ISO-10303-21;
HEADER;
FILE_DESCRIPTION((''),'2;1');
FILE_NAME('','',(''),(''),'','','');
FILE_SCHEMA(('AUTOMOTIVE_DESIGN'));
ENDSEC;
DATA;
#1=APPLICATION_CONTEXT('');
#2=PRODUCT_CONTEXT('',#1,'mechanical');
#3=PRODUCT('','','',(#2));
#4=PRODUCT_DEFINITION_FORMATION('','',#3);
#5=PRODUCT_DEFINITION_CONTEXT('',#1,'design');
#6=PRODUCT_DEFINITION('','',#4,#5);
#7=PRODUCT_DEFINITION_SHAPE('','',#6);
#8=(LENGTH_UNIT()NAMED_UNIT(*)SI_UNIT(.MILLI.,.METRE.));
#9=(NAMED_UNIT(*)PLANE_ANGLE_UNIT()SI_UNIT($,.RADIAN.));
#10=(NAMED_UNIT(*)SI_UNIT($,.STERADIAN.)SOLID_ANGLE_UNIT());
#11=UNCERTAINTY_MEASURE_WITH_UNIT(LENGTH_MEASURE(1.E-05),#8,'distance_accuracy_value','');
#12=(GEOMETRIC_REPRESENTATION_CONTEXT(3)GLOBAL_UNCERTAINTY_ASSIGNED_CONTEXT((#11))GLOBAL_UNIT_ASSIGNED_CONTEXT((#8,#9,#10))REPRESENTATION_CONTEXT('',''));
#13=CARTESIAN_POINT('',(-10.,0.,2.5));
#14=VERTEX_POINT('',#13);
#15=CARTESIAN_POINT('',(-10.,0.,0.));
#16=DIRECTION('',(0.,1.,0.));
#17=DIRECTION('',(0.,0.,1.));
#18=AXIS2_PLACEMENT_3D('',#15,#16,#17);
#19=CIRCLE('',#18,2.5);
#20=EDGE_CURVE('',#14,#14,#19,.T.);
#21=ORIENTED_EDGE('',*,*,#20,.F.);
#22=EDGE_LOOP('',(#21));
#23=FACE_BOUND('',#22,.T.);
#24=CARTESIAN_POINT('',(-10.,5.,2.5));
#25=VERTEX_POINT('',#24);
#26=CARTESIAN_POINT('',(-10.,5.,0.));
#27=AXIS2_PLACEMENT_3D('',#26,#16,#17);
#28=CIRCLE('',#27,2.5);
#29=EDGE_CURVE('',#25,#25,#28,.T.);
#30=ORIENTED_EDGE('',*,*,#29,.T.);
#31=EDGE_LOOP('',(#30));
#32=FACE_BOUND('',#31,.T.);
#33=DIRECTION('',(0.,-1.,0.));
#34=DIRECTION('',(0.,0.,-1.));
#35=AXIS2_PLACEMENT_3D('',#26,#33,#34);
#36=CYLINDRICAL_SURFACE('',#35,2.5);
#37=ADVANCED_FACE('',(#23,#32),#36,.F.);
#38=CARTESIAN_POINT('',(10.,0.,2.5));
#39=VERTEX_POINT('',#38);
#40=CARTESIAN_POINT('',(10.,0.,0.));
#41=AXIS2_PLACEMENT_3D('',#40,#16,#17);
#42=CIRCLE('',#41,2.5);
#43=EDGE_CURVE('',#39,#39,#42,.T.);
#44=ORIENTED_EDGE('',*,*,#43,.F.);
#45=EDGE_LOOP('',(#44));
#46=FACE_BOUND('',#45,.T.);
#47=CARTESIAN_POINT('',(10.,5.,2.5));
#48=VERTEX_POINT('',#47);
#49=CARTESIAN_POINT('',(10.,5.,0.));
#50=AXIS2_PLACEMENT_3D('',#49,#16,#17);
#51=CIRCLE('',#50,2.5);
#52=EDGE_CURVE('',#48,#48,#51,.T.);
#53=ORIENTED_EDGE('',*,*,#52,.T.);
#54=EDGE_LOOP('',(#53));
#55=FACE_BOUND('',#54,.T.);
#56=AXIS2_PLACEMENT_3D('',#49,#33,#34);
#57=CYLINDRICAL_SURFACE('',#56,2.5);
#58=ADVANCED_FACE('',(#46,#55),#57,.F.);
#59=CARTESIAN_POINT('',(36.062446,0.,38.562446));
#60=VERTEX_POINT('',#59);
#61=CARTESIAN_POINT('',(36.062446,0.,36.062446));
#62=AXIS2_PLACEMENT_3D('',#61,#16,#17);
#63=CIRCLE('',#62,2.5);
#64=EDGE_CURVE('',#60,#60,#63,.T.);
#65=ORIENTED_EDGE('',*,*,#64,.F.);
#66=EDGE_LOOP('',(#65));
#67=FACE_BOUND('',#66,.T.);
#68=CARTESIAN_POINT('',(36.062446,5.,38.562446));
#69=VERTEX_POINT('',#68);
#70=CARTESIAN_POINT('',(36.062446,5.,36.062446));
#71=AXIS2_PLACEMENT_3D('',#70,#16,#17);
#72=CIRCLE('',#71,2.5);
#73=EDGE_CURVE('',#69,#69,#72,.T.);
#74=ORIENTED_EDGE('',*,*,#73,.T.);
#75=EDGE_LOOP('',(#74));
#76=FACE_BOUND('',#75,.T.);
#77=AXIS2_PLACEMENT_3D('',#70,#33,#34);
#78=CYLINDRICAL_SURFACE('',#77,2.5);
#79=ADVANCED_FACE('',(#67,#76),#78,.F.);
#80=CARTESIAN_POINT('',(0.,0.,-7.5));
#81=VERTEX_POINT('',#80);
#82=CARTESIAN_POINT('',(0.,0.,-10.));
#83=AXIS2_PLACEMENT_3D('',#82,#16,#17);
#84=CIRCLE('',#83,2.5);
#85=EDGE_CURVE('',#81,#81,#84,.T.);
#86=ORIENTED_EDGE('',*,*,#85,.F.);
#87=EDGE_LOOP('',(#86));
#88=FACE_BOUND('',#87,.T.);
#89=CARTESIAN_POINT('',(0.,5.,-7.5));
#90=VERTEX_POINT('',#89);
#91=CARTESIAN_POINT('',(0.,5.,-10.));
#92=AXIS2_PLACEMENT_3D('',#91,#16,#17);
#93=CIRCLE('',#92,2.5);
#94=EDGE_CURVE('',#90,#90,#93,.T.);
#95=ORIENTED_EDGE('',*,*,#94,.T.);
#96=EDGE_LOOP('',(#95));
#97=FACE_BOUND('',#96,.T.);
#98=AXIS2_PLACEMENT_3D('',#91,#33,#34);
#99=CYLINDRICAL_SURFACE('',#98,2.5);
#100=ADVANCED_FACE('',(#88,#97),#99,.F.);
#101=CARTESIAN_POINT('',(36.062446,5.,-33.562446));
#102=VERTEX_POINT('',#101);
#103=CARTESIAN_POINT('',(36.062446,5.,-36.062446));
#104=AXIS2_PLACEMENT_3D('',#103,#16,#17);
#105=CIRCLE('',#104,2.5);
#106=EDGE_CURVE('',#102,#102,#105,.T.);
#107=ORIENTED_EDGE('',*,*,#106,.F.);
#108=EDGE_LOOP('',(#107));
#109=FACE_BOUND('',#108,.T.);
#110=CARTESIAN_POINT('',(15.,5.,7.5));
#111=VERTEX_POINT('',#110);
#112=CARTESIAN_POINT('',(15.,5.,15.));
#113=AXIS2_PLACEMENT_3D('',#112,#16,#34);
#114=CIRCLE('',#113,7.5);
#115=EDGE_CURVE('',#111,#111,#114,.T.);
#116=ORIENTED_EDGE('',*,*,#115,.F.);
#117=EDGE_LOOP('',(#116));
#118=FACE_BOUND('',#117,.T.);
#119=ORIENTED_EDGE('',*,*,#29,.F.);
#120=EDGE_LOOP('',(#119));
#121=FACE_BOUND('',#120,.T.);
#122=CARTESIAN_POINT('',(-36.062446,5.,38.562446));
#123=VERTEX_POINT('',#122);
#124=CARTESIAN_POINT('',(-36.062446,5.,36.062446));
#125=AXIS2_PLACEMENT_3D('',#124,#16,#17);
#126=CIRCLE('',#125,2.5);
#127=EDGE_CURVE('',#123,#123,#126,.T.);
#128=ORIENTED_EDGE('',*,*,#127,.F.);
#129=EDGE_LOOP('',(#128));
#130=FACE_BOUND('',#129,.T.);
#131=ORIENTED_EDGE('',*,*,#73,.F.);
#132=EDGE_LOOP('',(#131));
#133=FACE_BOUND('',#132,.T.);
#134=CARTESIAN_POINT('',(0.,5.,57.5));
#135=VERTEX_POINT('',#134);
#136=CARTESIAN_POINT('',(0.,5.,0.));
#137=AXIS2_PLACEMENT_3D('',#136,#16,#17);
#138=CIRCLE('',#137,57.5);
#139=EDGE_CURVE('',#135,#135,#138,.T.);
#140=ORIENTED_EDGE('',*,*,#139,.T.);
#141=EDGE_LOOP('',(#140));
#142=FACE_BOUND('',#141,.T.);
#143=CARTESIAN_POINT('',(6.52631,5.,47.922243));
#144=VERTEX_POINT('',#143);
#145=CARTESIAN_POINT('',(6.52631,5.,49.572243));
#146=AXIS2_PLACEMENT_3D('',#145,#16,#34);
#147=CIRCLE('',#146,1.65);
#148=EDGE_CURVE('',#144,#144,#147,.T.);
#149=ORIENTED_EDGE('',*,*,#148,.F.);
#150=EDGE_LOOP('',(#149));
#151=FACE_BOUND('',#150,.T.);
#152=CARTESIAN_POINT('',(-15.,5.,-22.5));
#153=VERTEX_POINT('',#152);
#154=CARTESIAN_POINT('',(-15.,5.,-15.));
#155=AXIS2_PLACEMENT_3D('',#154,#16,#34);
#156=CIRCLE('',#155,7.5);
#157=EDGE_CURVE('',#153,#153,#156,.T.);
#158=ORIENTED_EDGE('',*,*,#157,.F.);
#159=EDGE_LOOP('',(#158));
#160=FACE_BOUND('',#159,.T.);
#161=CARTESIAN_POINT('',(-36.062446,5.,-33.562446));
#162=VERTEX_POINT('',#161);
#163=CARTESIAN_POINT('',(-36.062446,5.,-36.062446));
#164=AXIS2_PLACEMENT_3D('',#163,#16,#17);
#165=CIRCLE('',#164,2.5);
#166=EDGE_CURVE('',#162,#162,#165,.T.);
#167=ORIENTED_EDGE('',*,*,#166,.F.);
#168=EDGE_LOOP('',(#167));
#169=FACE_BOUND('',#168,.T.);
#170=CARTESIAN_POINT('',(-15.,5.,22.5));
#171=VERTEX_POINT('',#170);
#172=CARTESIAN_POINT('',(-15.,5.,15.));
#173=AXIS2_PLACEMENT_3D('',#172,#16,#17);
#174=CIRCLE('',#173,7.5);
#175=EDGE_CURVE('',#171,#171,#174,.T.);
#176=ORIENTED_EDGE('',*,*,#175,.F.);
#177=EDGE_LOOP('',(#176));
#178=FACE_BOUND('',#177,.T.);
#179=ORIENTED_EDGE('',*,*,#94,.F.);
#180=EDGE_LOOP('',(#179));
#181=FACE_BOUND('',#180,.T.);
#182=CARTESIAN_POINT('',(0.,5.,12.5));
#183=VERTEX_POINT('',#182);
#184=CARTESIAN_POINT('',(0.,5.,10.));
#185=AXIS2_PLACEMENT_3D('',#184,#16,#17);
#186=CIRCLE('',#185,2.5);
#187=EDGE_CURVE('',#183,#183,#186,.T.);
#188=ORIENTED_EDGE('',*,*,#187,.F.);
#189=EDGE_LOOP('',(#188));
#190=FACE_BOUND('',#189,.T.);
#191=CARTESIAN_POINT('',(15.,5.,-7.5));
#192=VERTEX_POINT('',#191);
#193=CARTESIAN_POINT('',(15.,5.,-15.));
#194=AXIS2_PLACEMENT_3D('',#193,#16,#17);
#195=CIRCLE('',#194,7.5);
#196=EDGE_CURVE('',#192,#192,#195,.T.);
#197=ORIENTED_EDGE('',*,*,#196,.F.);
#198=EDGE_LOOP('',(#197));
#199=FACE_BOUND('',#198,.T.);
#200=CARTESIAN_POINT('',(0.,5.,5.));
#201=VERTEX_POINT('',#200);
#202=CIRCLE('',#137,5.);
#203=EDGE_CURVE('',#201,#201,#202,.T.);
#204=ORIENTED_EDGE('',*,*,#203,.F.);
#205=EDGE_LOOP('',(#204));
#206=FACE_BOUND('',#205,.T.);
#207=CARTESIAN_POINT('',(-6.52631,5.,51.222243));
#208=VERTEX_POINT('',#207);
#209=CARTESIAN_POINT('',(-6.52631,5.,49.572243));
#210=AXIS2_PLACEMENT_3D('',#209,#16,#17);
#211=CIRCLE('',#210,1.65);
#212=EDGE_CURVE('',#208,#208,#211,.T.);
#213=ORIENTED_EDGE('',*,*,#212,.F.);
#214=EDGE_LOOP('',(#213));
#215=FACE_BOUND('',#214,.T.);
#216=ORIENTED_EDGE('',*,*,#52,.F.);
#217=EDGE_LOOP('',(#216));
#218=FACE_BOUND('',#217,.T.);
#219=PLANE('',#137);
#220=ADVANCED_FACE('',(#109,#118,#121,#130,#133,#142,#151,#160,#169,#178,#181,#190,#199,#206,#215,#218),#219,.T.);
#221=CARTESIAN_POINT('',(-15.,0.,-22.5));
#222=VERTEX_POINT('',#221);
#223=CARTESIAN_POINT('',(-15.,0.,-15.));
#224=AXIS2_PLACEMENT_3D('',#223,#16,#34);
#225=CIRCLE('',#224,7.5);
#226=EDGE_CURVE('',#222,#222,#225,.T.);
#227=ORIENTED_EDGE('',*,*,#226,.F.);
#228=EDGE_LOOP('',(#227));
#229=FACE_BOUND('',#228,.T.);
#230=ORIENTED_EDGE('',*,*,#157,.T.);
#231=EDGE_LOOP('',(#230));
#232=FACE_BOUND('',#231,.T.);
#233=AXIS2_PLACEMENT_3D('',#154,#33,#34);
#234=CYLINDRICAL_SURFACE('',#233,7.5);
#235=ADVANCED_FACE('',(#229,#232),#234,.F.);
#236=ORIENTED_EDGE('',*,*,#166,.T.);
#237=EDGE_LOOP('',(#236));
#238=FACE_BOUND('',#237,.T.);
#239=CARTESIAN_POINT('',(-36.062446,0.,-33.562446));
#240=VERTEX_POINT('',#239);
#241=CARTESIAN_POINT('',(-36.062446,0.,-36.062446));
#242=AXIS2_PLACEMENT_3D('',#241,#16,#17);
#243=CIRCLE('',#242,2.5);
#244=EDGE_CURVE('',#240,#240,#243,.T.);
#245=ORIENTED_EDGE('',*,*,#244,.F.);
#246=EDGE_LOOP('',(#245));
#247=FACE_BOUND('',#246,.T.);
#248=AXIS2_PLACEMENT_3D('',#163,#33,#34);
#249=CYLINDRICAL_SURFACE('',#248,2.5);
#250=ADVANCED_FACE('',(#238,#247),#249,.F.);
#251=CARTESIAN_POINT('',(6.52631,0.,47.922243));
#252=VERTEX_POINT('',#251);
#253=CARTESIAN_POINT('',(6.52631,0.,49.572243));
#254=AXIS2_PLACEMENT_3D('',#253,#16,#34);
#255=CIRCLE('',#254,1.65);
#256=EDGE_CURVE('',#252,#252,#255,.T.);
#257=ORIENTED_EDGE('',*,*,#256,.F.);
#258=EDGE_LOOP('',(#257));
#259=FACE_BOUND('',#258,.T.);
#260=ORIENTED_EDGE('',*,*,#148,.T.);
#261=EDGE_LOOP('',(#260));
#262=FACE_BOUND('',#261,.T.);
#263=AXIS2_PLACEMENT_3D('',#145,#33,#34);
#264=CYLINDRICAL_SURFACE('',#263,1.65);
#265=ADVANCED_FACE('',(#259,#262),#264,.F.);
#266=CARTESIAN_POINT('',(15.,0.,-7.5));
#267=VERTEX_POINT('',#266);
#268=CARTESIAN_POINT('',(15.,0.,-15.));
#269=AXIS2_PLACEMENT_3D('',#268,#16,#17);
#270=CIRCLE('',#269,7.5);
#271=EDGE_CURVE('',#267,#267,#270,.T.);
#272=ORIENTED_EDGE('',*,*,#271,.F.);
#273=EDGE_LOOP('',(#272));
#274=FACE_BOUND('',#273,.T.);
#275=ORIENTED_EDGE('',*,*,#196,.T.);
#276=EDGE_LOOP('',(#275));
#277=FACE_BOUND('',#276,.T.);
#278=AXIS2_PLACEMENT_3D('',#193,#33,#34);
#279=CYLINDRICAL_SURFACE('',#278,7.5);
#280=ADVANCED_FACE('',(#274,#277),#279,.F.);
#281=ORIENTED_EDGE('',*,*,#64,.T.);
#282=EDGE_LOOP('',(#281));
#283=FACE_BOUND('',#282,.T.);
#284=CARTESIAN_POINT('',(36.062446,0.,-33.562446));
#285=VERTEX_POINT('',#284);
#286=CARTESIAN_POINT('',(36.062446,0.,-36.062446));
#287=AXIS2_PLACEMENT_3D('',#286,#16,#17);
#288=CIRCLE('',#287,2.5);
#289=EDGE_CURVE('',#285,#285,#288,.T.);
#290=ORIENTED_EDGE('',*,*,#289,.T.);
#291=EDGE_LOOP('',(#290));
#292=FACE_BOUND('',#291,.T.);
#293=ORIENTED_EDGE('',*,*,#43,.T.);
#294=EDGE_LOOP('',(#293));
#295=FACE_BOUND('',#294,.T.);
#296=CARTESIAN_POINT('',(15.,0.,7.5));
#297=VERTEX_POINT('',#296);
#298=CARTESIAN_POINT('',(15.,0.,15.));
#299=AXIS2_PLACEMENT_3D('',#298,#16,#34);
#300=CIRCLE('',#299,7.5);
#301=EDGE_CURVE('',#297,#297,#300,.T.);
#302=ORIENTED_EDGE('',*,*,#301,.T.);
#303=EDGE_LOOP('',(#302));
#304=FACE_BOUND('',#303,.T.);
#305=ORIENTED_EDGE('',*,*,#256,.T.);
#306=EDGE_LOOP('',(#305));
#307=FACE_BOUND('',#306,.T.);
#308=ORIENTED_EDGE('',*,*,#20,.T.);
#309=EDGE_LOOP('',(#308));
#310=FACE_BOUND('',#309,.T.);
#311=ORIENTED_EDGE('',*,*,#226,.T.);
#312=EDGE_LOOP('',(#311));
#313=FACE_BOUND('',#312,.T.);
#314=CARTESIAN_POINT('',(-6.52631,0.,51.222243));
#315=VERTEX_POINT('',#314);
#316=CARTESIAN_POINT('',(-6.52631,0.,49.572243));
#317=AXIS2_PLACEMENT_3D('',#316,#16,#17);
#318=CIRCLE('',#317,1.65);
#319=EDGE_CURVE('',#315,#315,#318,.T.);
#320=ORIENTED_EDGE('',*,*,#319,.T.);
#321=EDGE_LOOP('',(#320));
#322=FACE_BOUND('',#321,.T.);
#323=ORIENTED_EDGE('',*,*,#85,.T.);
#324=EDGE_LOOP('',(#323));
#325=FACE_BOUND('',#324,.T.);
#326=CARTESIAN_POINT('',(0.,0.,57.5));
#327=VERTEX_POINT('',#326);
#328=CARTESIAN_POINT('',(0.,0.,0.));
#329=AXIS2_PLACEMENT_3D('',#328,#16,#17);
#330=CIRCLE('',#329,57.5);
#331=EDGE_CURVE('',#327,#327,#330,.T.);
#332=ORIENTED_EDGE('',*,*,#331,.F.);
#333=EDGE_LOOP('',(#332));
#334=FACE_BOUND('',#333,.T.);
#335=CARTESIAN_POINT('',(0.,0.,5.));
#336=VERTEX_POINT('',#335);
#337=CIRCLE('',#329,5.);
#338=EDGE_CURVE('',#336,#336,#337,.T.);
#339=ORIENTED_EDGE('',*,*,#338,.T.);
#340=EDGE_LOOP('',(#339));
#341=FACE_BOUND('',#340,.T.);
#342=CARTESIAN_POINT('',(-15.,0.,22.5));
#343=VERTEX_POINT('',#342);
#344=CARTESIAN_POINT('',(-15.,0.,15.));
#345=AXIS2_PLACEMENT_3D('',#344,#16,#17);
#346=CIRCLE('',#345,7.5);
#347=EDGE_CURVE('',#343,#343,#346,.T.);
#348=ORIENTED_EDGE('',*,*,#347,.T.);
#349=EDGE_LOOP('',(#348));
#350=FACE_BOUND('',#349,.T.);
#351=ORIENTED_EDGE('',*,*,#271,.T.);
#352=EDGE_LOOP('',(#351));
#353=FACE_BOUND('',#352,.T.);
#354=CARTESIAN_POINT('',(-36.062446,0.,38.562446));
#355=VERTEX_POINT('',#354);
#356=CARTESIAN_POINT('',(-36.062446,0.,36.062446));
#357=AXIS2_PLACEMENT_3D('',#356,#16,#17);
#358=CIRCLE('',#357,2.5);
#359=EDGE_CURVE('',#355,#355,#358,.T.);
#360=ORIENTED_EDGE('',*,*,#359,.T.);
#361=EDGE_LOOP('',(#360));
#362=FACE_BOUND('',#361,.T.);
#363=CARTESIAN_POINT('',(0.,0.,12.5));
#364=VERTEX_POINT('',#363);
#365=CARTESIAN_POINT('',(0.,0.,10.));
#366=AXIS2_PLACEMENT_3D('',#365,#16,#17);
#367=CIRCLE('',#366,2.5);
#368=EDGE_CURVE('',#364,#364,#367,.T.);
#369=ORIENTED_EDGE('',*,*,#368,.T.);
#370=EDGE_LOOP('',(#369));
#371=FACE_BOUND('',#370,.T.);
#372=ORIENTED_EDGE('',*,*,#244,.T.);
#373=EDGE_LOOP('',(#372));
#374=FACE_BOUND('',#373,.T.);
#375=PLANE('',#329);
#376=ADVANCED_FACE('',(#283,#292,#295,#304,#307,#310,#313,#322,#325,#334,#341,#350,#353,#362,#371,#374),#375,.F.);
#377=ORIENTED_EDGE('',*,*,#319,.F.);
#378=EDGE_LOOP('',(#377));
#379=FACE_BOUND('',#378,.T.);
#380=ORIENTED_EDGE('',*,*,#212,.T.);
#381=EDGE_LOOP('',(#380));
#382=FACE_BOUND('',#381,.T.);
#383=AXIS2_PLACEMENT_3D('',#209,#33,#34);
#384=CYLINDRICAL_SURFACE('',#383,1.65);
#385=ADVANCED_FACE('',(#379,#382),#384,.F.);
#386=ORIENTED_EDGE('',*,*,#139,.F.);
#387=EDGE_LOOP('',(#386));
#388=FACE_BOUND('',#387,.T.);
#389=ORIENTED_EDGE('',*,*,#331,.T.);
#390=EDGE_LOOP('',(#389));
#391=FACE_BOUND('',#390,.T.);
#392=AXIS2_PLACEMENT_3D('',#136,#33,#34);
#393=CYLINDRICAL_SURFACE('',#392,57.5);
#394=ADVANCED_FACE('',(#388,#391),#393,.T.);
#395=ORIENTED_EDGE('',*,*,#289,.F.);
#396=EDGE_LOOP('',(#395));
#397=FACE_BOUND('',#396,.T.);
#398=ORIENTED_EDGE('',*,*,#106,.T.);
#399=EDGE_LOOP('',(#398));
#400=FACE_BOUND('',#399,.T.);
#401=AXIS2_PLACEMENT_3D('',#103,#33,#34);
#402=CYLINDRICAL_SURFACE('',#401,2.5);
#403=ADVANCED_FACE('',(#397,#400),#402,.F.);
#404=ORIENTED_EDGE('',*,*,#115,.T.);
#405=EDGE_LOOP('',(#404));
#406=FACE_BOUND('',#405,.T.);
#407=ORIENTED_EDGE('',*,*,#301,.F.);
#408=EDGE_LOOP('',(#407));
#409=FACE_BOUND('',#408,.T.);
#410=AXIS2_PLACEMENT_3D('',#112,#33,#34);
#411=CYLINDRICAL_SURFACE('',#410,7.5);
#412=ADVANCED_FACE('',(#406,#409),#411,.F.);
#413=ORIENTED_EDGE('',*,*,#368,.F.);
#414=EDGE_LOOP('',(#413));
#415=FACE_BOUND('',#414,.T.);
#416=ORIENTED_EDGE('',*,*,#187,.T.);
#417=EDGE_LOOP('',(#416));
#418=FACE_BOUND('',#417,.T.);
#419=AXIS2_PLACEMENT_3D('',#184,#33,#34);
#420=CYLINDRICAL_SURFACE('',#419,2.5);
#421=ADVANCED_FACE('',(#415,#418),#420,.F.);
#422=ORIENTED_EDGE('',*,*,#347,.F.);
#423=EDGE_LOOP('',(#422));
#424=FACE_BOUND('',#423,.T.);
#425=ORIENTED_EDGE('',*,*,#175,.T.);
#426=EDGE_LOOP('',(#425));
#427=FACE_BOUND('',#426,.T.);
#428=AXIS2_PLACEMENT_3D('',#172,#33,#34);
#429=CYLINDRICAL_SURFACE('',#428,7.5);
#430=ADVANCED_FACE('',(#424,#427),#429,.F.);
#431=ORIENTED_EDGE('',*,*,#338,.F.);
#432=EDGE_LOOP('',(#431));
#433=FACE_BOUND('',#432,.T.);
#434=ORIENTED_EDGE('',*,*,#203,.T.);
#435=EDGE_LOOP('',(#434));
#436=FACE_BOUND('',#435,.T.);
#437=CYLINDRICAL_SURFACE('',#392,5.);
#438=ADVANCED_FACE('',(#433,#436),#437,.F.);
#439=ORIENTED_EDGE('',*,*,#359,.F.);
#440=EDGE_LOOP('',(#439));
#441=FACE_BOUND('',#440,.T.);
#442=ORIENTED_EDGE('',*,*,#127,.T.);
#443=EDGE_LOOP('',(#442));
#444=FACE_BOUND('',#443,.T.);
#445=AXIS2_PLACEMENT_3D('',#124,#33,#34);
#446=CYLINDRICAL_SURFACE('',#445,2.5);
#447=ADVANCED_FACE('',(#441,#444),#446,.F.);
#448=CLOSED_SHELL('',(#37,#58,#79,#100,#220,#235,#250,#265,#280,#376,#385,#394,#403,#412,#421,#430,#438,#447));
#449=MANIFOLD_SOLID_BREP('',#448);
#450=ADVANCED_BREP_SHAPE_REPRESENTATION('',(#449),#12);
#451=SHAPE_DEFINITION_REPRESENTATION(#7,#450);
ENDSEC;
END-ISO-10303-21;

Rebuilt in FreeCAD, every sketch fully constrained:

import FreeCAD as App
import Part
import Sketcher
from FreeCAD import Vector
Q = App.Units.Quantity

doc = App.newDocument("Part")
params = doc.addObject("Spreadsheet::Sheet", "Params")
for row, (alias, value) in enumerate([
    ("sketch1_diameter", "115 mm"),
    ("sketch1_diameter2", "5 mm"),
    ("sketch1_diameter3", "15 mm"),
    ("sketch1_diameter4", "10 mm"),
    ("sketch1_diameter5", "3.3 mm"),
    ("pad1_length", "5 mm"),
], start=1):
    params.set(f"A{row}", alias)
    params.set(f"B{row}", "=" + value)
    params.setAlias(f"B{row}", alias)

body = doc.addObject("PartDesign::Body", "Body")

# Sketch on XZ plane
sketch1 = body.newObject("Sketcher::SketchObject", "Sketch")
sketch1.AttachmentSupport = (doc.getObject("XZ_Plane"), [""])
sketch1.MapMode = "FlatFace"
sketch1.addGeometry([
    Part.Circle(Vector(0, 0, 0), Vector(0, 0, 1), 57.5),  # 0
    Part.Circle(Vector(-36.1, -36.1, 0), Vector(0, 0, 1), 2.5),  # 1
    Part.Circle(Vector(-15, -15, 0), Vector(0, 0, 1), 7.5),  # 2
    Part.Circle(Vector(-10, 0, 0), Vector(0, 0, 1), 2.5),  # 3
    Part.Circle(Vector(-36.1, 36.1, 0), Vector(0, 0, 1), 2.5),  # 4
    Part.Circle(Vector(-15, 15, 0), Vector(0, 0, 1), 7.5),  # 5
    Part.Circle(Vector(-6.5, 49.6, 0), Vector(0, 0, 1), 1.6),  # 6
    Part.Circle(Vector(0, -10, 0), Vector(0, 0, 1), 2.5),  # 7
    Part.Circle(Vector(0, 0, 0), Vector(0, 0, 1), 5),  # 8
    Part.Circle(Vector(15, -15, 0), Vector(0, 0, 1), 7.5),  # 9
    Part.Circle(Vector(10, 0, 0), Vector(0, 0, 1), 2.5),  # 10
    Part.Circle(Vector(36.1, -36.1, 0), Vector(0, 0, 1), 2.5),  # 11
    Part.Circle(Vector(0, 10, 0), Vector(0, 0, 1), 2.5),  # 12
    Part.Circle(Vector(15, 15, 0), Vector(0, 0, 1), 7.5),  # 13
    Part.Circle(Vector(6.5, 49.6, 0), Vector(0, 0, 1), 1.6),  # 14
    Part.Circle(Vector(36.1, 36.1, 0), Vector(0, 0, 1), 2.5),  # 15
], False)
sketch1.addConstraint([
    Sketcher.Constraint("Coincident", 0, 3, -1, 1),
    Sketcher.Constraint("Coincident", 8, 3, -1, 1),
    Sketcher.Constraint("Equal", 1, 3),
    Sketcher.Constraint("Equal", 3, 4),
    Sketcher.Constraint("Equal", 2, 5),
    Sketcher.Constraint("Equal", 4, 7),
    Sketcher.Constraint("Equal", 5, 9),
    Sketcher.Constraint("Equal", 7, 10),
    Sketcher.Constraint("Equal", 10, 11),
    Sketcher.Constraint("Equal", 11, 12),
    Sketcher.Constraint("Equal", 9, 13),
    Sketcher.Constraint("Equal", 6, 14),
    Sketcher.Constraint("Equal", 12, 15),
    Sketcher.Constraint("Symmetric", 5, 3, 9, 3, -1, 1),
    Sketcher.Constraint("Symmetric", 3, 3, 10, 3, -1, 1),
    Sketcher.Constraint("Symmetric", 4, 3, 11, 3, -1, 1),
    Sketcher.Constraint("Symmetric", 7, 3, 12, 3, -1, 1),
    Sketcher.Constraint("Symmetric", 2, 3, 13, 3, -1, 1),
    Sketcher.Constraint("Symmetric", 1, 3, 15, 3, -1, 1),
    Sketcher.Constraint("Symmetric", 2, 3, 9, 3, -2),
    Sketcher.Constraint("Symmetric", 1, 3, 11, 3, -2),
    Sketcher.Constraint("Symmetric", 6, 3, 14, 3, -2),
    Sketcher.Constraint("PointOnObject", 3, 3, -1),
    Sketcher.Constraint("PointOnObject", 7, 3, -2),
    Sketcher.Constraint("Diameter", 0, Q("115 mm")),
    Sketcher.Constraint("Diameter", 1, Q("5 mm")),
    Sketcher.Constraint("Diameter", 2, Q("15 mm")),
    Sketcher.Constraint("Diameter", 8, Q("10 mm")),
    Sketcher.Constraint("Diameter", 6, Q("3.3 mm")),
    Sketcher.Constraint("DistanceX", 2, 3, -1, 1, Q("15 mm")),
    Sketcher.Constraint("DistanceY", 2, 3, -1, 1, Q("15 mm")),
    Sketcher.Constraint("DistanceX", 3, 3, -1, 1, Q("10 mm")),
    Sketcher.Constraint("DistanceY", 7, 3, -1, 1, Q("10 mm")),
    Sketcher.Constraint("DistanceX", 6, 3, -1, 1, Q("6.52631 mm")),
    Sketcher.Constraint("DistanceY", 1, 3, 4, 3, Q("72.124892 mm")),
    Sketcher.Constraint("DistanceX", 1, 3, -1, 1, Q("36.062446 mm")),
    Sketcher.Constraint("DistanceY", -1, 1, 6, 3, Q("49.572243 mm")),
])
sketch1.setExpression("Constraints[24]", "Params.sketch1_diameter")
sketch1.setExpression("Constraints[25]", "Params.sketch1_diameter2")
sketch1.setExpression("Constraints[26]", "Params.sketch1_diameter3")
sketch1.setExpression("Constraints[27]", "Params.sketch1_diameter4")
sketch1.setExpression("Constraints[28]", "Params.sketch1_diameter5")
pad1 = body.newObject("PartDesign::Pad", "Pad")
pad1.Profile = sketch1
pad1.setExpression("Length", "Params.pad1_length")
pad1.Reversed = True

doc.recompute()
